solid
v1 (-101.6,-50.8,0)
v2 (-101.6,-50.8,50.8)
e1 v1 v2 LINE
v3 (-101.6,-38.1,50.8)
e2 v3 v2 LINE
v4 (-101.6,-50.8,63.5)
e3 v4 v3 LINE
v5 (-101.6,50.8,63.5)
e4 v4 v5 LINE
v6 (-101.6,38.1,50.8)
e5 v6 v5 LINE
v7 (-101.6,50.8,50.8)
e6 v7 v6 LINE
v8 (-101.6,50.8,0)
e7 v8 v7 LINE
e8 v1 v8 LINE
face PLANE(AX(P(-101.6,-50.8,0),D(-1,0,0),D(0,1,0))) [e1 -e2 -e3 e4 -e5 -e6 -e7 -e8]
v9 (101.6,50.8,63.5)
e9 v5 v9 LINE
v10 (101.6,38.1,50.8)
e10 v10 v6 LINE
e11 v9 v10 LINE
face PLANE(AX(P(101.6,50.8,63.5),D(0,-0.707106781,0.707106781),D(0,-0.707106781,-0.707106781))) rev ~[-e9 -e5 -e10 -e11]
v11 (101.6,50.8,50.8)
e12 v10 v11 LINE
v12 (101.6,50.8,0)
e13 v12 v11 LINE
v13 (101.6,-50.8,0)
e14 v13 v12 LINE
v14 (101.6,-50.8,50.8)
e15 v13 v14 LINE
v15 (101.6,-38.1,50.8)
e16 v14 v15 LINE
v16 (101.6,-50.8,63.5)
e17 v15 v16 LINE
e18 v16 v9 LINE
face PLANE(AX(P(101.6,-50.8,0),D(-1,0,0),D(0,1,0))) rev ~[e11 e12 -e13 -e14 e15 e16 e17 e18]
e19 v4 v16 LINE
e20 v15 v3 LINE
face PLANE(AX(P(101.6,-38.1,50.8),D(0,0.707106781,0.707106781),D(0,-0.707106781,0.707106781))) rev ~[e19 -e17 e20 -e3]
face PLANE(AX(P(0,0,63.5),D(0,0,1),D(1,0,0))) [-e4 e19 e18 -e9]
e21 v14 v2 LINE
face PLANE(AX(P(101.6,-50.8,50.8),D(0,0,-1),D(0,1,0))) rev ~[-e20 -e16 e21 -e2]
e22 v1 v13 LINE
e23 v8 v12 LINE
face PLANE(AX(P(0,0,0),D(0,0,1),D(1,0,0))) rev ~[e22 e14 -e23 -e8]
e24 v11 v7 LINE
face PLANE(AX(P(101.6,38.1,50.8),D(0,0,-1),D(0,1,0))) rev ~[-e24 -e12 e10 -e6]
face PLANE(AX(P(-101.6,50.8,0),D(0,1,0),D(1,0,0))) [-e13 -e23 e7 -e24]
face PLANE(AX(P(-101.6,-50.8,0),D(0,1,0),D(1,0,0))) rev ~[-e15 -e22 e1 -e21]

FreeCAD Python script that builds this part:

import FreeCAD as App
import Part
import Sketcher
from FreeCAD import Vector
Q = App.Units.Quantity

doc = App.newDocument("Part")
params = doc.addObject("Spreadsheet::Sheet", "Params")
for row, (alias, value) in enumerate([
    ("sketch1_width", "8 in"),
    ("sketch1_height", "4 in"),
    ("pad1_length", "2.5 in"),
    ("sketch2_width", "0.5 in"),
    ("pocket1_length", "8.5 in"),
    ("sketch3_width", "0.5 in"),
    ("pocket2_length", "8.5 in"),
], start=1):
    params.set(f"A{row}", alias)
    params.set(f"B{row}", "=" + value)
    params.setAlias(f"B{row}", alias)

body = doc.addObject("PartDesign::Body", "Body")

# Sketch on XY plane
sketch1 = doc.addObject("Sketcher::SketchObject", "Sketch")
body.addObject(sketch1)
sketch1.AttachmentSupport = (doc.XY_Plane, [""])
sketch1.MapMode = "FlatFace"
sketch1.addGeometry(Part.LineSegment(Vector(-101.6, 50.8, 0), Vector(-101.6, -50.8, 0)), False)
sketch1.addGeometry(Part.LineSegment(Vector(-101.6, -50.8, 0), Vector(101.6, -50.8, 0)), False)
sketch1.addGeometry(Part.LineSegment(Vector(101.6, -50.8, 0), Vector(101.6, 50.8, 0)), False)
sketch1.addGeometry(Part.LineSegment(Vector(101.6, 50.8, 0), Vector(-101.6, 50.8, 0)), False)
sketch1.addConstraint(Sketcher.Constraint("Coincident", 0, 2, 1, 1))
sketch1.addConstraint(Sketcher.Constraint("Coincident", 1, 2, 2, 1))
sketch1.addConstraint(Sketcher.Constraint("Coincident", 2, 2, 3, 1))
sketch1.addConstraint(Sketcher.Constraint("Coincident", 3, 2, 0, 1))
sketch1.addConstraint(Sketcher.Constraint("Vertical", 0))
sketch1.addConstraint(Sketcher.Constraint("Horizontal", 1))
sketch1.addConstraint(Sketcher.Constraint("Vertical", 2))
sketch1.addConstraint(Sketcher.Constraint("Horizontal", 3))
sketch1.addConstraint(Sketcher.Constraint("Symmetric", 0, 2, 2, 2, -1, 1))
sketch1.addConstraint(Sketcher.Constraint("DistanceX", 1, 1, 1, 2, Q("8 in")))
sketch1.addConstraint(Sketcher.Constraint("DistanceY", 0, 2, 0, 1, Q("4 in")))
sketch1.setExpression("Constraints[9]", "Params.sketch1_width")
sketch1.setExpression("Constraints[10]", "Params.sketch1_height")
pad1 = doc.addObject("PartDesign::Pad", "Pad")
body.addObject(pad1)
pad1.Profile = sketch1
pad1.setExpression("Length", "Params.pad1_length")

# Sketch on YZ plane
sketch2 = doc.addObject("Sketcher::SketchObject", "Sketch001")
body.addObject(sketch2)
sketch2.AttachmentSupport = (doc.YZ_Plane, [""])
sketch2.MapMode = "FlatFace"
sketch2.AttachmentOffset = App.Placement(Vector(0, 0, 4 * 25.4), App.Rotation())
sketch2.addGeometry(Part.LineSegment(Vector(50.8, 50.8, 0), Vector(50.8, 63.5, 0)), False)
sketch2.addGeometry(Part.LineSegment(Vector(50.8, 63.5, 0), Vector(38.1, 50.8, 0)), False)
sketch2.addGeometry(Part.LineSegment(Vector(38.1, 50.8, 0), Vector(50.8, 50.8, 0)), False)
sketch2.addConstraint(Sketcher.Constraint("Coincident", 0, 2, 1, 1))
sketch2.addConstraint(Sketcher.Constraint("Coincident", 1, 2, 2, 1))
sketch2.addConstraint(Sketcher.Constraint("Coincident", 2, 2, 0, 1))
sketch2.addConstraint(Sketcher.Constraint("Vertical", 0))
sketch2.addConstraint(Sketcher.Constraint("Horizontal", 2))
sketch2.addConstraint(Sketcher.Constraint("Equal", 2, 0))
sketch2.addConstraint(Sketcher.Constraint("DistanceX", 2, 1, 2, 2, Q("0.5 in")))
sketch2.addConstraint(Sketcher.Constraint("DistanceX", -1, 1, 0, 2, Q("2 in")))
sketch2.addConstraint(Sketcher.Constraint("DistanceY", -1, 1, 1, 2, Q("2 in")))
sketch2.setExpression("Constraints[6]", "Params.sketch2_width")
pocket1 = doc.addObject("PartDesign::Pocket", "Pocket")
body.addObject(pocket1)
pocket1.Profile = sketch2
pocket1.setExpression("Length", "Params.pocket1_length")

# Sketch on YZ plane
sketch3 = doc.addObject("Sketcher::SketchObject", "Sketch002")
body.addObject(sketch3)
sketch3.AttachmentSupport = (doc.YZ_Plane, [""])
sketch3.MapMode = "FlatFace"
sketch3.AttachmentOffset = App.Placement(Vector(0, 0, 4 * 25.4), App.Rotation())
sketch3.addGeometry(Part.LineSegment(Vector(-38.1, 50.8, 0), Vector(-50.8, 63.5, 0)), False)
sketch3.addGeometry(Part.LineSegment(Vector(-50.8, 63.5, 0), Vector(-50.8, 50.8, 0)), False)
sketch3.addGeometry(Part.LineSegment(Vector(-50.8, 50.8, 0), Vector(-38.1, 50.8, 0)), False)
sketch3.addConstraint(Sketcher.Constraint("Coincident", 0, 2, 1, 1))
sketch3.addConstraint(Sketcher.Constraint("Coincident", 1, 2, 2, 1))
sketch3.addConstraint(Sketcher.Constraint("Coincident", 2, 2, 0, 1))
sketch3.addConstraint(Sketcher.Constraint("Vertical", 1))
sketch3.addConstraint(Sketcher.Constraint("Horizontal", 2))
sketch3.addConstraint(Sketcher.Constraint("Equal", 2, 1))
sketch3.addConstraint(Sketcher.Constraint("DistanceX", 2, 1, 2, 2, Q("0.5 in")))
sketch3.addConstraint(Sketcher.Constraint("DistanceX", 0, 2, -1, 1, Q("2 in")))
sketch3.addConstraint(Sketcher.Constraint("DistanceY", -1, 1, 1, 2, Q("2 in")))
sketch3.setExpression("Constraints[6]", "Params.sketch3_width")
pocket2 = doc.addObject("PartDesign::Pocket", "Pocket001")
body.addObject(pocket2)
pocket2.Profile = sketch3
pocket2.setExpression("Length", "Params.pocket2_length")

doc.recompute()
